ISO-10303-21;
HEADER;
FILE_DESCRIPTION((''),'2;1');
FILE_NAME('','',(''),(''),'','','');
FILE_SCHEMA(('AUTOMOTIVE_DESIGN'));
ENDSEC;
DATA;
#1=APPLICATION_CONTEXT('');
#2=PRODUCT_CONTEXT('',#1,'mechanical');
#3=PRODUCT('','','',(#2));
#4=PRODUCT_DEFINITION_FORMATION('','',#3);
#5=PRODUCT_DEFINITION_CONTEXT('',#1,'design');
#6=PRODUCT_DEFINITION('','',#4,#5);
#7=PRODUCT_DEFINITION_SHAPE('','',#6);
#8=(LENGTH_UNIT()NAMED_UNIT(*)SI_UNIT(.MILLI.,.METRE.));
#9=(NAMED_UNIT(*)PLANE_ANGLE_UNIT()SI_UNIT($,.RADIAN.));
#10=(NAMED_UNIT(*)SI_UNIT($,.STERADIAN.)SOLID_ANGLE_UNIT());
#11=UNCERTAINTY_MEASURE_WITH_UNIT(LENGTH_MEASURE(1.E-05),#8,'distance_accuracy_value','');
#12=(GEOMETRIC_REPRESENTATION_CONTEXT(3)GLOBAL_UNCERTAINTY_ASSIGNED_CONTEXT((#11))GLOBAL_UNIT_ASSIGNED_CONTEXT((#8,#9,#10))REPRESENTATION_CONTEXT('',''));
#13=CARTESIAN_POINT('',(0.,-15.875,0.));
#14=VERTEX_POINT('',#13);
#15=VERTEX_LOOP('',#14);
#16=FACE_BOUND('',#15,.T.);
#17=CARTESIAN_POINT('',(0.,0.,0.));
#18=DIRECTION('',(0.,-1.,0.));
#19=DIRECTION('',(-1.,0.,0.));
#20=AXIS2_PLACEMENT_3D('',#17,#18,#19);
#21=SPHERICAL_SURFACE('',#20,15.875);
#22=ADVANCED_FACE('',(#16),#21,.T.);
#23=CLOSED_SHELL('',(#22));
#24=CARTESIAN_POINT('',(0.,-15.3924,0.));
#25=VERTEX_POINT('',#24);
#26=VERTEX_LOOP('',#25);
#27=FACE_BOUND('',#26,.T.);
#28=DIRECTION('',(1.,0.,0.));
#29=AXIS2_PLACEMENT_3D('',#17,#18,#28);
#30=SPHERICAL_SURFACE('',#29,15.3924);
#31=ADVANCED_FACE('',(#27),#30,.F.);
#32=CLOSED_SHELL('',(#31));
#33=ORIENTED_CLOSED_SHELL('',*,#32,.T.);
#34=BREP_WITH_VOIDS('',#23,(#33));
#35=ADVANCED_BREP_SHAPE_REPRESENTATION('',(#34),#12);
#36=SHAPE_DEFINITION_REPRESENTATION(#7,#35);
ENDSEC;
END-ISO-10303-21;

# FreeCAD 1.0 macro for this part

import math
import FreeCAD as App
import Part
import Sketcher
from FreeCAD import Vector
Q = App.Units.Quantity

doc = App.newDocument("Part")
body = doc.addObject("PartDesign::Body", "Body")

# Sketch on XY plane
sketch1 = doc.addObject("Sketcher::SketchObject", "Sketch")
body.addObject(sketch1)
sketch1.AttachmentSupport = (doc.XY_Plane, [""])
sketch1.MapMode = "FlatFace"
sketch1.addGeometry([
    Part.LineSegment(Vector(0, 15.875, 0), Vector(0, 15.3924, 0)),
    Part.ArcOfCircle(Part.Circle(Vector(0, 0, 0), Vector(0, 0, 1), 15.3924), math.radians(-90), math.radians(90)),
    Part.LineSegment(Vector(0, -15.3924, 0), Vector(0, -15.875, 0)),
    Part.ArcOfCircle(Part.Circle(Vector(0, 0, 0), Vector(0, 0, 1), 15.875), math.radians(-90), math.radians(90)),
], False)
sketch1.addConstraint([
    Sketcher.Constraint("Coincident", 0, 2, 1, 2),
    Sketcher.Constraint("Coincident", 1, 1, 2, 1),
    Sketcher.Constraint("Coincident", 2, 2, 3, 1),
    Sketcher.Constraint("Coincident", 3, 2, 0, 1),
    Sketcher.Constraint("Vertical", 0),
    Sketcher.Constraint("Vertical", 2),
    Sketcher.Constraint("Coincident", 1, 3, -1, 1),
    Sketcher.Constraint("Coincident", 3, 3, -1, 1),
    Sketcher.Constraint("PointOnObject", 0, 2, -2),
    Sketcher.Constraint("PointOnObject", 1, 1, -2),
    Sketcher.Constraint("Radius", 1, Q("0.606 in")),
    Sketcher.Constraint("Radius", 3, Q("0.625 in")),
])
revolution = doc.addObject("PartDesign::Revolution", "Revolution")
body.addObject(revolution)
revolution.Profile = sketch1
revolution.ReferenceAxis = (sketch1, ["V_Axis"])
revolution.Angle = 360

doc.recompute()
